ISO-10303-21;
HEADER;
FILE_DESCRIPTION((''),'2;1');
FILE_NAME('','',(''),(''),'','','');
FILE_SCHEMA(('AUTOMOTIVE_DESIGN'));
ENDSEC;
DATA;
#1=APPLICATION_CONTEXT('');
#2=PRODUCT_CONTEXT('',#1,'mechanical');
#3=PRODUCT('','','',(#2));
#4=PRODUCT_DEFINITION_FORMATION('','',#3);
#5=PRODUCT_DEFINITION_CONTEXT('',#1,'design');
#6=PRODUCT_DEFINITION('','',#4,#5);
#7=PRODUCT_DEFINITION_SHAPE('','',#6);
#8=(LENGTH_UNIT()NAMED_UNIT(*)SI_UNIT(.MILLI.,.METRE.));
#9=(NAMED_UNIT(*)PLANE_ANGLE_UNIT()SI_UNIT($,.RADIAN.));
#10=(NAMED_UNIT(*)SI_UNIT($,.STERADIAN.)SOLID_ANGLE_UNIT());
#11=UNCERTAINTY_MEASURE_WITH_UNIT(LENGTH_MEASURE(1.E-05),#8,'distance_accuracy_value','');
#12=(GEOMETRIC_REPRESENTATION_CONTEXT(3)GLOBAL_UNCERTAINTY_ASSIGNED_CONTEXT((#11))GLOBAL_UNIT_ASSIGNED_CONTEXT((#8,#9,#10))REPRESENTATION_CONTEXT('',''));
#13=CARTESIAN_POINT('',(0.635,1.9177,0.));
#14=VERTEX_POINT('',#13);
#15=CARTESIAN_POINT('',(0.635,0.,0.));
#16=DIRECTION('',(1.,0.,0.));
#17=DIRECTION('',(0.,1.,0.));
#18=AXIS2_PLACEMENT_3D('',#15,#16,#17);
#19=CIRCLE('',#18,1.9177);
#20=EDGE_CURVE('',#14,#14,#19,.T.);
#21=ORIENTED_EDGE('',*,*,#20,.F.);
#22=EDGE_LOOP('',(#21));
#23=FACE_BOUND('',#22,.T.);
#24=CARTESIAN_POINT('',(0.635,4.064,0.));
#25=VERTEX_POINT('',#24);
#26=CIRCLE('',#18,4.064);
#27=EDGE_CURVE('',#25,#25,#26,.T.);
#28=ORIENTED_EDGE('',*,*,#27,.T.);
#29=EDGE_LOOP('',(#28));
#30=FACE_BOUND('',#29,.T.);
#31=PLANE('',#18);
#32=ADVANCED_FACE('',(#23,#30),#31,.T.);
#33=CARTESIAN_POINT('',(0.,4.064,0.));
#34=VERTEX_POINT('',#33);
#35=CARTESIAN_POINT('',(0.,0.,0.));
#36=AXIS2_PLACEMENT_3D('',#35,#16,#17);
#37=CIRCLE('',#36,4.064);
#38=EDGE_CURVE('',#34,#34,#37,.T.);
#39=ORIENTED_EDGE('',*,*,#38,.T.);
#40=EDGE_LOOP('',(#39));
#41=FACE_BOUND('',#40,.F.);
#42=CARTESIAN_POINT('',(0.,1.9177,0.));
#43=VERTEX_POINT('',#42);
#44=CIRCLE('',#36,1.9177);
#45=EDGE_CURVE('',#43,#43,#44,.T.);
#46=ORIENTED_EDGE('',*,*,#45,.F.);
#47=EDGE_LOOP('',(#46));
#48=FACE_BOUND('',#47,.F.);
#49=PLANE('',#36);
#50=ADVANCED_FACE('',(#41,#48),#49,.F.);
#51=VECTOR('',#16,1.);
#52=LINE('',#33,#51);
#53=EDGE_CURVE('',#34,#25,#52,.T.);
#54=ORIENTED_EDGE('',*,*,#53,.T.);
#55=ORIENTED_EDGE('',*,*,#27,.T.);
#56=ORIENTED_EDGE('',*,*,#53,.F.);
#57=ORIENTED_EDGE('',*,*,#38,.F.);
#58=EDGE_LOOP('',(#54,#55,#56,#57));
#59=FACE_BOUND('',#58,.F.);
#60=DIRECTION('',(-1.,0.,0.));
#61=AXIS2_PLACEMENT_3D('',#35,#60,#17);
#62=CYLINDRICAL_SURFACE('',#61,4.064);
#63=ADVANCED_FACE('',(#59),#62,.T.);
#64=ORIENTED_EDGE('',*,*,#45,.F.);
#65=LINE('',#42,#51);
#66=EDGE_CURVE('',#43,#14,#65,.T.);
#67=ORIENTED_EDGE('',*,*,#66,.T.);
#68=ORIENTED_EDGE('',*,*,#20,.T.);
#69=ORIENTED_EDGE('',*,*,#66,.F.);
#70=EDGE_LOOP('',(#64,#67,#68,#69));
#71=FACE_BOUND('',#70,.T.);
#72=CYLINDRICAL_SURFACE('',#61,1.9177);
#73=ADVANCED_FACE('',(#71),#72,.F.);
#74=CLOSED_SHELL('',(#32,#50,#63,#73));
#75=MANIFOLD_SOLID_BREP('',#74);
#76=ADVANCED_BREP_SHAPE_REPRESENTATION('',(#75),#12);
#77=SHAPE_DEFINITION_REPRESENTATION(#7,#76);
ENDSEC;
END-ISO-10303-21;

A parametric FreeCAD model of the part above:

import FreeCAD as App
import Part
import Sketcher

V = App.Vector
Q = App.Units.Quantity

doc = App.newDocument("Part")
params = doc.addObject("Spreadsheet::Sheet", "Params")
for row, (alias, value) in enumerate([
    ("sketch1_diameter", "0.32 in"),
    ("sketch1_diameter2", "0.151 in"),
    ("pad1_length", "0.025 in"),
], start=1):
    params.set(f"A{row}", alias)
    params.set(f"B{row}", "=" + value)
    params.setAlias(f"B{row}", alias)

body = doc.addObject("PartDesign::Body", "Body")

sketch1 = doc.addObject("Sketcher::SketchObject", "Sketch")
body.addObject(sketch1)
sketch1.AttachmentSupport = (doc.YZ_Plane, [""])
sketch1.MapMode = "FlatFace"
sketch1.addGeometry([
    Part.Circle(V(0, 0, 0), V(0, 0, 1), 4.064),
    Part.Circle(V(0, 0, 0), V(0, 0, 1), 1.9177),
], False)
sketch1.addConstraint([
    Sketcher.Constraint("Coincident", 0, 3, -1, 1),
    Sketcher.Constraint("Coincident", 1, 3, -1, 1),
    Sketcher.Constraint("Diameter", 0, Q("0.32 in")),
    Sketcher.Constraint("Diameter", 1, Q("0.151 in")),
])
sketch1.setExpression("Constraints[2]", "Params.sketch1_diameter")
sketch1.setExpression("Constraints[3]", "Params.sketch1_diameter2")
pad1 = doc.addObject("PartDesign::Pad", "Pad")
body.addObject(pad1)
pad1.Profile = sketch1
pad1.setExpression("Length", "Params.pad1_length")

doc.recompute()
